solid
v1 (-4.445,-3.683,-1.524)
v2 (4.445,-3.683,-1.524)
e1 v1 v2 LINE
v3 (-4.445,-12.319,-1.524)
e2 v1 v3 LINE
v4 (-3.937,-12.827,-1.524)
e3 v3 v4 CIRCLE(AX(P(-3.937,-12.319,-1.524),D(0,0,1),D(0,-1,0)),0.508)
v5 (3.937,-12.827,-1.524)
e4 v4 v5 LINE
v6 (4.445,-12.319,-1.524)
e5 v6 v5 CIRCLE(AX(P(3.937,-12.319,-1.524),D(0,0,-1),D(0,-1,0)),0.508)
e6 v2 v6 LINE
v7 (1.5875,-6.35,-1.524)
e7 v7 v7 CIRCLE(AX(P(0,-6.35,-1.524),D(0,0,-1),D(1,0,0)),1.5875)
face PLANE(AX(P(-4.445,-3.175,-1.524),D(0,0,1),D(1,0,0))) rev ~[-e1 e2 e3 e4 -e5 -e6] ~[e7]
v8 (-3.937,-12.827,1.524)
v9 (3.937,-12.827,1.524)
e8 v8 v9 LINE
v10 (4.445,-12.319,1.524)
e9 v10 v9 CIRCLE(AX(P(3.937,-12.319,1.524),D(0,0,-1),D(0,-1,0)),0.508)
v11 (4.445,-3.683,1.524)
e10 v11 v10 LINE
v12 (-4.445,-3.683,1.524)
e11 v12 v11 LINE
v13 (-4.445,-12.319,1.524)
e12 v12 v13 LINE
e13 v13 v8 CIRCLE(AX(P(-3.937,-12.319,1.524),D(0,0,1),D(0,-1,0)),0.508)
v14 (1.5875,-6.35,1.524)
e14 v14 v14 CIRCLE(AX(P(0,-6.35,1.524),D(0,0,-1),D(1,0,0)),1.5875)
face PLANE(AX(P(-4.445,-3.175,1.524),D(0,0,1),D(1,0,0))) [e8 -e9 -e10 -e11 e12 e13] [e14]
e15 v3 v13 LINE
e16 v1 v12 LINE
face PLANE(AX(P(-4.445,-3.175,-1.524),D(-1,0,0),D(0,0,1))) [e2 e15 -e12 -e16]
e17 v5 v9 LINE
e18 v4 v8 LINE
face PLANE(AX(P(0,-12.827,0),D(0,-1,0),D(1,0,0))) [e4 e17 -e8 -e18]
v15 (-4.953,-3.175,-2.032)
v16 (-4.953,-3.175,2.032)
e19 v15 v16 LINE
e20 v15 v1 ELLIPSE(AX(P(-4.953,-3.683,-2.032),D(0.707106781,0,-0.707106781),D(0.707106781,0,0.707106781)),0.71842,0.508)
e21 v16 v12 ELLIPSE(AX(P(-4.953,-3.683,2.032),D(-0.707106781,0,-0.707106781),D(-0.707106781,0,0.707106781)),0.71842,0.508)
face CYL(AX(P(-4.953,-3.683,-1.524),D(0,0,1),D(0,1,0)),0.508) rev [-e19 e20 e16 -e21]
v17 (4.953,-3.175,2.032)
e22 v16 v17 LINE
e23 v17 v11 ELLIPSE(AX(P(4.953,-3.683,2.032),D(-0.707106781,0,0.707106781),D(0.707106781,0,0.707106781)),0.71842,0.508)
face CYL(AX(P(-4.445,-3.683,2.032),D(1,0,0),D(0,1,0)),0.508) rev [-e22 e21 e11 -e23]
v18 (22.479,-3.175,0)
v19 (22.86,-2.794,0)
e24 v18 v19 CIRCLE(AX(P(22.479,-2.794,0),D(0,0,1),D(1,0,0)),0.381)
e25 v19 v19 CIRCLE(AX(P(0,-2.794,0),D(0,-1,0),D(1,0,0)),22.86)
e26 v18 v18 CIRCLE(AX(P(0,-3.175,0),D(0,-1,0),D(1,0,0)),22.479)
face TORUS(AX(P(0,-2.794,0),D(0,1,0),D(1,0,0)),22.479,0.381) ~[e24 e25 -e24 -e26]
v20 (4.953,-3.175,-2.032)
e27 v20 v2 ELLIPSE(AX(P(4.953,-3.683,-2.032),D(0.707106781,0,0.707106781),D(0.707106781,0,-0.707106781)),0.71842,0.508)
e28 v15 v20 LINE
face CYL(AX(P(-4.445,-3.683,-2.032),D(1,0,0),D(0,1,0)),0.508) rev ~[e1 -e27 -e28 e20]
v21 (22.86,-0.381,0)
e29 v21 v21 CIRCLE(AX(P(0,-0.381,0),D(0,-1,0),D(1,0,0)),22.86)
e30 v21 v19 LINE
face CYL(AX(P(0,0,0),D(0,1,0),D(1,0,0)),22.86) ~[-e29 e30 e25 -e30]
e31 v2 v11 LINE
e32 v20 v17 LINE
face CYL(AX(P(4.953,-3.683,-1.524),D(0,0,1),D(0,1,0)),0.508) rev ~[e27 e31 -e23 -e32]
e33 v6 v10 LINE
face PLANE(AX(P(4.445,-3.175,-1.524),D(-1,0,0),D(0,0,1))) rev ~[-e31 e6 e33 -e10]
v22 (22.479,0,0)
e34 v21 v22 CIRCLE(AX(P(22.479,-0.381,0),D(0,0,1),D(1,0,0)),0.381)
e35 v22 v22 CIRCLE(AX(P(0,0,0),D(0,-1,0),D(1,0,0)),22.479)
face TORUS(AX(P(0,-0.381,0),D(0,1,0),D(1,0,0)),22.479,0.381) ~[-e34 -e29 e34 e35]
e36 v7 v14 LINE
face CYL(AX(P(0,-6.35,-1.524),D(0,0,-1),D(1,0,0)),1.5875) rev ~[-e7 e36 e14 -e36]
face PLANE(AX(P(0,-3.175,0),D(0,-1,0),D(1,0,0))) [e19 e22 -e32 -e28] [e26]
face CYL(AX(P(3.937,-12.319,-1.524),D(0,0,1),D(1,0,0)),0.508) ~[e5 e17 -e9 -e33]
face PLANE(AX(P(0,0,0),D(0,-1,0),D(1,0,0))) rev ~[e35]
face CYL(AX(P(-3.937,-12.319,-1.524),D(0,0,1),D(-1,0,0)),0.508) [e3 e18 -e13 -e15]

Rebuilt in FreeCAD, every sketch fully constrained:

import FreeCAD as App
import Part
import Sketcher

V = App.Vector
Q = App.Units.Quantity


def edges_at(feature, points):
    """Names of the edges that pass closest to the given points."""
    edges = feature.Shape.Edges
    near = lambda p: min(range(len(edges)), key=lambda i: edges[i].distToShape(Part.Vertex(*p))[0])
    return sorted({f"Edge{near(p) + 1}" for p in points})

doc = App.newDocument("Part")
body = doc.addObject("PartDesign::Body", "Body")

sketch1 = body.newObject("Sketcher::SketchObject", "Sketch")
sketch1.AttachmentSupport = (doc.getObject("XZ_Plane"), [""])
sketch1.MapMode = "FlatFace"
sketch1.addGeometry(Part.Circle(V(0, 0, 0), V(0, 0, 1), 23), False)
sketch1.addConstraint(Sketcher.Constraint("Coincident", 0, 3, -1, 1))
sketch1.addConstraint(Sketcher.Constraint("Diameter", 0, Q("1.8 in")))
pad1 = body.newObject("PartDesign::Pad", "Pad")
pad1.Profile = sketch1
pad1.Length = Q("0.125 in")

sketch2 = body.newObject("Sketcher::SketchObject", "Sketch001")
sketch2.AttachmentSupport = (doc.getObject("XZ_Plane"), [""])
sketch2.MapMode = "FlatFace"
sketch2.AttachmentOffset = App.Placement(V(0, 0, 0.125 * 25.4), App.Rotation())
sketch2.addGeometry(Part.LineSegment(V(-4.4, 1.5, 0), V(-4.4, -1.5, 0)), False)
sketch2.addGeometry(Part.LineSegment(V(-4.4, -1.5, 0), V(4.4, -1.5, 0)), False)
sketch2.addGeometry(Part.LineSegment(V(4.4, -1.5, 0), V(4.4, 1.5, 0)), False)
sketch2.addGeometry(Part.LineSegment(V(4.4, 1.5, 0), V(-4.4, 1.5, 0)), False)
sketch2.addConstraint(Sketcher.Constraint("Coincident", 0, 2, 1, 1))
sketch2.addConstraint(Sketcher.Constraint("Coincident", 1, 2, 2, 1))
sketch2.addConstraint(Sketcher.Constraint("Coincident", 2, 2, 3, 1))
sketch2.addConstraint(Sketcher.Constraint("Coincident", 3, 2, 0, 1))
sketch2.addConstraint(Sketcher.Constraint("Vertical", 0))
sketch2.addConstraint(Sketcher.Constraint("Horizontal", 1))
sketch2.addConstraint(Sketcher.Constraint("Vertical", 2))
sketch2.addConstraint(Sketcher.Constraint("Horizontal", 3))
sketch2.addConstraint(Sketcher.Constraint("Symmetric", 0, 2, 2, 2, -1, 1))
sketch2.addConstraint(Sketcher.Constraint("DistanceX", 1, 1, 1, 2, Q("0.35 in")))
sketch2.addConstraint(Sketcher.Constraint("DistanceY", 0, 2, 0, 1, Q("0.12 in")))
pad2 = body.newObject("PartDesign::Pad", "Pad001")
pad2.Profile = sketch2
pad2.Length = Q("0.38 in")

sketch3 = body.newObject("Sketcher::SketchObject", "Sketch002")
sketch3.AttachmentSupport = (doc.getObject("XY_Plane"), [""])
sketch3.MapMode = "FlatFace"
sketch3.AttachmentOffset = App.Placement(V(0, 0, -0.06 * 25.4), App.Rotation())
sketch3.addGeometry(Part.Circle(V(0, -6.3, 0), V(0, 0, 1), 1.6), False)
sketch3.addConstraint(Sketcher.Constraint("PointOnObject", 0, 3, -2))
sketch3.addConstraint(Sketcher.Constraint("Diameter", 0, Q("0.125 in")))
sketch3.addConstraint(Sketcher.Constraint("DistanceY", 0, 3, -1, 1, Q("0.25 in")))
pocket1 = body.newObject("PartDesign::Pocket", "Pocket")
pocket1.Profile = sketch3
pocket1.Type = "ThroughAll"
pocket1.Reversed = True
doc.recompute()

fillet = body.newObject("PartDesign::Fillet", "Fillet")
fillet.Base = (pocket1, edges_at(pocket1, [
    (-4.445, -12.827, 0),
    (4.445, -12.827, 0),
    (0, -3.175, -1.524),
    (-4.445, -3.175, 0),
    (4.445, -3.175, 0),
    (0, -3.175, 1.524),
]))
fillet.Radius = Q("0.02 in")
doc.recompute()

fillet2 = body.newObject("PartDesign::Fillet", "Fillet001")
fillet2.Base = (fillet, edges_at(fillet, [(-22.86, -3.175, 0), (-22.86, 0, 0)]))
fillet2.Radius = Q("0.015 in")

doc.recompute()
